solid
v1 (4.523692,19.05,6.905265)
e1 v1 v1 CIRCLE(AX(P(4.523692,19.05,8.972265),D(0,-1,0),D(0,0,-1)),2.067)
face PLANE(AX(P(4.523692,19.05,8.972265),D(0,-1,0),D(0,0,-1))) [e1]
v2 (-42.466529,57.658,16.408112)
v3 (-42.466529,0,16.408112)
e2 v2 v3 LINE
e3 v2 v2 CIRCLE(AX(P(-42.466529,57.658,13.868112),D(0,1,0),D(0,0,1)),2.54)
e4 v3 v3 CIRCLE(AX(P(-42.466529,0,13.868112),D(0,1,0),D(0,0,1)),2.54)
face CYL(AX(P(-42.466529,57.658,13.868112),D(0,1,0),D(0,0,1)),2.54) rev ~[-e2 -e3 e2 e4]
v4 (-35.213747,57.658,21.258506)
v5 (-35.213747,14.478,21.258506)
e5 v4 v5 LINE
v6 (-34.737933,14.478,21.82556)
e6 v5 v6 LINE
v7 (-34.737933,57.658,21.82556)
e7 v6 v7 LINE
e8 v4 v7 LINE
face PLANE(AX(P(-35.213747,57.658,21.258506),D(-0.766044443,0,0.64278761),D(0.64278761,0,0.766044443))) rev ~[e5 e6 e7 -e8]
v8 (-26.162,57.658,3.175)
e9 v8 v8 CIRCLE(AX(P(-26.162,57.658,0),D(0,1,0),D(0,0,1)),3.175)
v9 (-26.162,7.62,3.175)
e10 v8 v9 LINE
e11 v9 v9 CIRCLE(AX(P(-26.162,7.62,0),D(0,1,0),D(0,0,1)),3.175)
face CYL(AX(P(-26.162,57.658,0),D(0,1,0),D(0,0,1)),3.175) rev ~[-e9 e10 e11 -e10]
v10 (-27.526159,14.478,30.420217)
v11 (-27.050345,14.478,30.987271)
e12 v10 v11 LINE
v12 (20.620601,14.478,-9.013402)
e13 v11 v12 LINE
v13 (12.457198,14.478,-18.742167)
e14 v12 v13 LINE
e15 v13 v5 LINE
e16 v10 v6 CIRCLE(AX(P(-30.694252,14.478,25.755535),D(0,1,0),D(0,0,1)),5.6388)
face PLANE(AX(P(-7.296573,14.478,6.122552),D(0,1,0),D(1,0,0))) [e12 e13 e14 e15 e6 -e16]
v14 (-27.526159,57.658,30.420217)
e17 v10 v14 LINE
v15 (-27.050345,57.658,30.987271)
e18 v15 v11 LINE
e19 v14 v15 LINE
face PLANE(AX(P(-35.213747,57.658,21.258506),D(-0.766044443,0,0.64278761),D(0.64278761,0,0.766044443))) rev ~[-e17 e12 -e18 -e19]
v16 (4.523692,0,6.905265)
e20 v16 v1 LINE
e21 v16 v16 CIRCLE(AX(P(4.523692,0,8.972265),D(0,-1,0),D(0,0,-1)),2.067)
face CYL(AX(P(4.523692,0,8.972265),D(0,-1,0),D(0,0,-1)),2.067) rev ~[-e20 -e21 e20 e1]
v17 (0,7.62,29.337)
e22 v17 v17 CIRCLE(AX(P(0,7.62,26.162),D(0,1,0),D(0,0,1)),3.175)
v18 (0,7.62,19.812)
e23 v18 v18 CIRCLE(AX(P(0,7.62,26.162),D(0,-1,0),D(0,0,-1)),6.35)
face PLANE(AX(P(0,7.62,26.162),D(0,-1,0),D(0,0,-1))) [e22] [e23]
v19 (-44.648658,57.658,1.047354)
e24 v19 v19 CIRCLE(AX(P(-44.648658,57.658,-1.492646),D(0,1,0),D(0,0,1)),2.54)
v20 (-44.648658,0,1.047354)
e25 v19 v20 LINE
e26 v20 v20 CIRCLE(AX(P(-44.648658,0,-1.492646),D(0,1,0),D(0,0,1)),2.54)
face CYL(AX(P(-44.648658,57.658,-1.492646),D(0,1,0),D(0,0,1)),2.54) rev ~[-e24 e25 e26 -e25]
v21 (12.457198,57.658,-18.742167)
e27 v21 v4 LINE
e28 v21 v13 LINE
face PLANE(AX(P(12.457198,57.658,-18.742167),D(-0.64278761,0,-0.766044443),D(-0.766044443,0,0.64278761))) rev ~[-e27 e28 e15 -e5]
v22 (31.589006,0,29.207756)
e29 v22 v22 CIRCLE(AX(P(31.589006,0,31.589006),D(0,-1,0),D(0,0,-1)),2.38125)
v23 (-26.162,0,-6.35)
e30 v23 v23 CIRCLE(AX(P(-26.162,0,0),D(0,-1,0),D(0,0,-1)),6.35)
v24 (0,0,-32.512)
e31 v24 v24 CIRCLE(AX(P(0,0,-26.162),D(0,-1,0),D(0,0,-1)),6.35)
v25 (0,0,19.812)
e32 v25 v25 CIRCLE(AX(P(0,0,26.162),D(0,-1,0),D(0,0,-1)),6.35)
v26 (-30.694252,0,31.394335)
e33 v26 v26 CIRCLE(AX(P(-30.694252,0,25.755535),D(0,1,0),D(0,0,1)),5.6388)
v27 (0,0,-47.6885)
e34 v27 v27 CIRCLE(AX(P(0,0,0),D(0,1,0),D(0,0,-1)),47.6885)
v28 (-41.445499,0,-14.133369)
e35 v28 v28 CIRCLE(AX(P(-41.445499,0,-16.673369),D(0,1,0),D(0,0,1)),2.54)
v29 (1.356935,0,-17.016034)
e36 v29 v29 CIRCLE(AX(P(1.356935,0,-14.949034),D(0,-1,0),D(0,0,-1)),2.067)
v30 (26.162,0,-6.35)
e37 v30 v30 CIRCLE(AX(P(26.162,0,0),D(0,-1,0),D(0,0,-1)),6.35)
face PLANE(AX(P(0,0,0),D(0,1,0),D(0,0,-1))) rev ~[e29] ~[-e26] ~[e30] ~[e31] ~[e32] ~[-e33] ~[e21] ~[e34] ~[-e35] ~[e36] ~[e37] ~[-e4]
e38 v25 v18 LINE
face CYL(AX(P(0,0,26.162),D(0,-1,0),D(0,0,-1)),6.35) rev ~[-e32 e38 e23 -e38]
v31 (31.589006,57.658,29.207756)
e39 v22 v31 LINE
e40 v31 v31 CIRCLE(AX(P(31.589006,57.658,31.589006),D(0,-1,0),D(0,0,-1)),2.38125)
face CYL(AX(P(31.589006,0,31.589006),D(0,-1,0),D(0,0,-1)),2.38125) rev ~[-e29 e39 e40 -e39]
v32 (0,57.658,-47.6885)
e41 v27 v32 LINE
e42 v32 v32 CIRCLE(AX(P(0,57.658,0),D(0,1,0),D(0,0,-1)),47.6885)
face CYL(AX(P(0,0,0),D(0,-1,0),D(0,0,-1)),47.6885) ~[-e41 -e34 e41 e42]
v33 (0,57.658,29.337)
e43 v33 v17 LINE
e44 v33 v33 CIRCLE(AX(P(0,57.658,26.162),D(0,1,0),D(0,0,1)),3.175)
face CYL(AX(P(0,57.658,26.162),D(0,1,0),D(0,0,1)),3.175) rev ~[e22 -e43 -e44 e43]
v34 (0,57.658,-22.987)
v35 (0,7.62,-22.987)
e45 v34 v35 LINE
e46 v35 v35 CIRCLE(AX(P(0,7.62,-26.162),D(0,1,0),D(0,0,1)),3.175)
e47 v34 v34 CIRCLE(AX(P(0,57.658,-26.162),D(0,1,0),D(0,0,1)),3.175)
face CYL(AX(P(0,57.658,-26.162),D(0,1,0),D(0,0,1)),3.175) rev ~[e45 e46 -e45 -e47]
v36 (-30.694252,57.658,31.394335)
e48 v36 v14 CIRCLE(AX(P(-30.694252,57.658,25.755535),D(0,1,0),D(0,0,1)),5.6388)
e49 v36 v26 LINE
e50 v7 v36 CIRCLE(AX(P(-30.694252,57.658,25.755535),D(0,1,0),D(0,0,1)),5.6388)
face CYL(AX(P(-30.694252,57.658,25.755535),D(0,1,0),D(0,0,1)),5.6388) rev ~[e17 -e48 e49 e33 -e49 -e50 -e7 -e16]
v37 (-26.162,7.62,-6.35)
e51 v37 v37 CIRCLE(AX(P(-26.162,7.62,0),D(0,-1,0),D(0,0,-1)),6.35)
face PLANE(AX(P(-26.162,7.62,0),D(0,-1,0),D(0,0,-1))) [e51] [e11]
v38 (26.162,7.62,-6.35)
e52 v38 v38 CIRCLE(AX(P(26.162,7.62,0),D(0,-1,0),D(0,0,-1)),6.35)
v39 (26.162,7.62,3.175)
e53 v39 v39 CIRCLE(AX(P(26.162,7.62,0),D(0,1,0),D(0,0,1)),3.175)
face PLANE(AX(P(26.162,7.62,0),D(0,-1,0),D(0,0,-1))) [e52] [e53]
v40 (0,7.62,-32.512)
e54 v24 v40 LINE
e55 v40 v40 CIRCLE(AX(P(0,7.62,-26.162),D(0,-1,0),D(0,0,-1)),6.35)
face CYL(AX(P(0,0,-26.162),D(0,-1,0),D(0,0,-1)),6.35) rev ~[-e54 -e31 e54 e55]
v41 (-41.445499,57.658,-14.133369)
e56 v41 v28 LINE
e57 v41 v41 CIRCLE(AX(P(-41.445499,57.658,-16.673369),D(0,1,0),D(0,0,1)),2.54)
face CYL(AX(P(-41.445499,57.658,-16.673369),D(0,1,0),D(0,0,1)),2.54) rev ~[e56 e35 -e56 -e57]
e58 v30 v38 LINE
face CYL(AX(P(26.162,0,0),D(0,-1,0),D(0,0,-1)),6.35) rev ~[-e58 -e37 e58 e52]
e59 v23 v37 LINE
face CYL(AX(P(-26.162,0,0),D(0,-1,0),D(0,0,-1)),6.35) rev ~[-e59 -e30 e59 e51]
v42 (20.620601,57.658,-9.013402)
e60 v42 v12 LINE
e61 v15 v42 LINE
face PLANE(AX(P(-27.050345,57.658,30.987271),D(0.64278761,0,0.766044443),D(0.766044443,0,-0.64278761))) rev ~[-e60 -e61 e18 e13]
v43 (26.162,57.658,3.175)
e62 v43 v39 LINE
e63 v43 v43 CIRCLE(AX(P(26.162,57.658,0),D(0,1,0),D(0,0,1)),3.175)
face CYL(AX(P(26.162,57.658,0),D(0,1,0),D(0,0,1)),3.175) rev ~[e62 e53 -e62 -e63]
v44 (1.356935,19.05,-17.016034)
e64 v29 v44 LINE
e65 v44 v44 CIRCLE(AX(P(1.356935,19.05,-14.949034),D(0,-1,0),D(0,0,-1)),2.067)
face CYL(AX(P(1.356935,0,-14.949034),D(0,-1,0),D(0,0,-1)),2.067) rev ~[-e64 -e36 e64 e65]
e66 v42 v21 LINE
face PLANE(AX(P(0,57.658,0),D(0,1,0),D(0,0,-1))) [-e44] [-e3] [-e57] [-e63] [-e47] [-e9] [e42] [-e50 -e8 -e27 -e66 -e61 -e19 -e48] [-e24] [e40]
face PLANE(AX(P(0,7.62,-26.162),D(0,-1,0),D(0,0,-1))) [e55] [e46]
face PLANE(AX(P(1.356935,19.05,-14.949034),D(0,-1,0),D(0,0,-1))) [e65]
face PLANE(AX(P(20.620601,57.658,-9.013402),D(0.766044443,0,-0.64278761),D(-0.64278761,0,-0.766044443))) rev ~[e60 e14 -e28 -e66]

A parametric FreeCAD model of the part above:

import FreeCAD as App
import Part
import Sketcher
Q = App.Units.Quantity

doc = App.newDocument("Part")
body = doc.addObject("PartDesign::Body", "Body")

sketch1 = body.newObject("Sketcher::SketchObject", "Sketch")
sketch1.AttachmentSupport = (doc.getObject("XZ_Plane"), [""])
sketch1.MapMode = "FlatFace"
sketch1.addGeometry(Part.Circle(App.Vector(0, 0, 0), App.Vector(0, 0, 1), 47.6885), False)
sketch1.addConstraint([
    Sketcher.Constraint("Coincident", 0, 3, -1, 1),
    Sketcher.Constraint("Diameter", 0, Q("3.755 in")),
])
pad1 = body.newObject("PartDesign::Pad", "Pad")
pad1.Profile = sketch1
pad1.Length = Q("2.27 in")
pad1.Reversed = True

sketch2 = body.newObject("Sketcher::SketchObject", "Sketch001")
sketch2.AttachmentSupport = (doc.getObject("XZ_Plane"), [""])
sketch2.MapMode = "FlatFace"
sketch2.AttachmentOffset = App.Placement(App.Vector(0, 0, -2.27 * 25.4), App.Rotation())
sketch2.addGeometry([
    Part.Circle(App.Vector(-41.445499, -16.673369, 0), App.Vector(0, 0, 1), 2.54),
    Part.Circle(App.Vector(-44.648658, -1.492646, 0), App.Vector(0, 0, 1), 2.54),
    Part.Circle(App.Vector(-42.466529, 13.868112, 0), App.Vector(0, 0, 1), 2.54),
    Part.Circle(App.Vector(-30.694252, 25.755535, 0), App.Vector(0, 0, 1), 5.6388),
], False)
sketch2.addConstraint([
    Sketcher.Constraint("Equal", 0, 1),
    Sketcher.Constraint("Equal", 1, 2),
    Sketcher.Constraint("Diameter", 0, Q("0.2 in")),
    Sketcher.Constraint("Diameter", 3, Q("0.444 in")),
    Sketcher.Constraint("DistanceX", 0, 3, -1, 1, 41.445499),
    Sketcher.Constraint("DistanceY", 0, 3, -1, 1, 16.673369),
    Sketcher.Constraint("DistanceX", 1, 3, -1, 1, 44.648658),
    Sketcher.Constraint("DistanceX", 2, 3, -1, 1, 42.466529),
    Sketcher.Constraint("DistanceY", -1, 1, 2, 3, 13.868112),
    Sketcher.Constraint("DistanceX", 3, 3, -1, 1, 30.694252),
    Sketcher.Constraint("DistanceY", 1, 3, 3, 3, 27.248181),
    Sketcher.Constraint("DistanceY", 1, 3, -1, 1, 1.492646),
])
pocket1 = body.newObject("PartDesign::Pocket", "Pocket")
pocket1.Profile = sketch2
pocket1.Type = "ThroughAll"
pocket1.Reversed = True

sketch3 = body.newObject("Sketcher::SketchObject", "Sketch002")
sketch3.AttachmentSupport = (doc.getObject("XZ_Plane"), [""])
sketch3.MapMode = "FlatFace"
sketch3.AttachmentOffset = App.Placement(App.Vector(0, 0, -2.27 * 25.4), App.Rotation())
sketch3.addGeometry([
    Part.Circle(App.Vector(-26.162, 0, 0), App.Vector(0, 0, 1), 3.175),
    Part.Circle(App.Vector(26.162, 0, 0), App.Vector(0, 0, 1), 3.175),
    Part.Circle(App.Vector(0, -26.162, 0), App.Vector(0, 0, 1), 3.175),
    Part.Circle(App.Vector(0, 26.162, 0), App.Vector(0, 0, 1), 3.175),
], False)
sketch3.addConstraint([
    Sketcher.Constraint("Equal", 0, 1),
    Sketcher.Constraint("Equal", 1, 2),
    Sketcher.Constraint("Equal", 2, 3),
    Sketcher.Constraint("Symmetric", 0, 3, 1, 3, -1, 1),
    Sketcher.Constraint("Symmetric", 2, 3, 3, 3, -1, 1),
    Sketcher.Constraint("PointOnObject", 0, 3, -1),
    Sketcher.Constraint("PointOnObject", 2, 3, -2),
    Sketcher.Constraint("Diameter", 0, Q("0.25 in")),
    Sketcher.Constraint("DistanceX", 0, 3, -1, 1, Q("1.03 in")),
    Sketcher.Constraint("DistanceY", 2, 3, -1, 1, Q("1.03 in")),
])
pocket2 = body.newObject("PartDesign::Pocket", "Pocket001")
pocket2.Profile = sketch3
pocket2.Type = "ThroughAll"
pocket2.Reversed = True

sketch4 = body.newObject("Sketcher::SketchObject", "Sketch003")
sketch4.AttachmentSupport = (doc.getObject("XZ_Plane"), [""])
sketch4.MapMode = "FlatFace"
sketch4.AttachmentOffset = App.Placement(App.Vector(0, 0, -2.27 * 25.4), App.Rotation())
sketch4.addGeometry([
    Part.LineSegment(App.Vector(-27.050345, 30.987271, 0), App.Vector(20.620601, -9.013402, 0)),
    Part.LineSegment(App.Vector(20.620601, -9.013402, 0), App.Vector(12.457198, -18.742167, 0)),
    Part.LineSegment(App.Vector(12.457198, -18.742167, 0), App.Vector(-35.213747, 21.258506, 0)),
    Part.LineSegment(App.Vector(-35.213747, 21.258506, 0), App.Vector(-27.050345, 30.987271, 0)),
], False)
sketch4.addConstraint([
    Sketcher.Constraint("Coincident", 0, 2, 1, 1),
    Sketcher.Constraint("Coincident", 1, 2, 2, 1),
    Sketcher.Constraint("Coincident", 2, 2, 3, 1),
    Sketcher.Constraint("Coincident", 3, 2, 0, 1),
    Sketcher.Constraint("Perpendicular", 0, 1),
    Sketcher.Constraint("Perpendicular", 1, 2),
    Sketcher.Constraint("Perpendicular", 2, 3),
    Sketcher.Constraint("Angle", 0, Q("-40 deg")),
    Sketcher.Constraint("Distance", 1, Q("0.5 in")),
    Sketcher.Constraint("Distance", 0, Q("2.45 in")),
    Sketcher.Constraint("DistanceX", -1, 1, 0, 2, 20.620601),
    Sketcher.Constraint("DistanceY", -1, 1, 3, 2, 30.987271),
])
pocket3 = body.newObject("PartDesign::Pocket", "Pocket002")
pocket3.Profile = sketch4
pocket3.Length = Q("1.7 in")
pocket3.Reversed = True

sketch5 = body.newObject("Sketcher::SketchObject", "Sketch004")
sketch5.AttachmentSupport = (doc.getObject("XZ_Plane"), [""])
sketch5.MapMode = "FlatFace"
sketch5.addGeometry([
    Part.Circle(App.Vector(0, 26.162, 0), App.Vector(0, 0, 1), 6.35),
    Part.Circle(App.Vector(26.162, 0, 0), App.Vector(0, 0, 1), 6.35),
    Part.Circle(App.Vector(0, -26.162, 0), App.Vector(0, 0, 1), 6.35),
    Part.Circle(App.Vector(-26.162, 0, 0), App.Vector(0, 0, 1), 6.35),
], False)
sketch5.addConstraint([
    Sketcher.Constraint("Equal", 0, 1),
    Sketcher.Constraint("Equal", 1, 2),
    Sketcher.Constraint("Equal", 2, 3),
    Sketcher.Constraint("Symmetric", 0, 3, 2, 3, -1, 1),
    Sketcher.Constraint("Symmetric", 1, 3, 3, 3, -1, 1),
    Sketcher.Constraint("PointOnObject", 0, 3, -2),
    Sketcher.Constraint("PointOnObject", 1, 3, -1),
    Sketcher.Constraint("Diameter", 0, Q("0.5 in")),
    Sketcher.Constraint("DistanceY", -1, 1, 0, 3, Q("1.03 in")),
    Sketcher.Constraint("DistanceX", -1, 1, 1, 3, Q("1.03 in")),
])
pocket4 = body.newObject("PartDesign::Pocket", "Pocket003")
pocket4.Profile = sketch5
pocket4.Length = Q("0.3 in")

sketch6 = body.newObject("Sketcher::SketchObject", "Sketch005")
sketch6.AttachmentSupport = (doc.getObject("XZ_Plane"), [""])
sketch6.MapMode = "FlatFace"
sketch6.addGeometry([
    Part.Circle(App.Vector(1.356935, -14.949034, 0), App.Vector(0, 0, 1), 2.067),
    Part.Circle(App.Vector(4.523692, 8.972265, 0), App.Vector(0, 0, 1), 2.067),
], False)
sketch6.addConstraint([
    Sketcher.Constraint("Equal", 0, 1),
    Sketcher.Constraint("Diameter", 0, 4.134),
    Sketcher.Constraint("DistanceY", 0, 3, 1, 3, 23.921299),
    Sketcher.Constraint("DistanceX", -1, 1, 1, 3, 4.523692),
    Sketcher.Constraint("DistanceX", -1, 1, 0, 3, 1.356935),
    Sketcher.Constraint("DistanceY", 0, 3, -1, 1, 14.949034),
])
pocket5 = body.newObject("PartDesign::Pocket", "Pocket004")
pocket5.Profile = sketch6
pocket5.Length = Q("0.75 in")

sketch7 = body.newObject("Sketcher::SketchObject", "Sketch006")
sketch7.AttachmentSupport = (doc.getObject("XZ_Plane"), [""])
sketch7.MapMode = "FlatFace"
sketch7.addGeometry(Part.Circle(App.Vector(31.589006, 31.589006, 0), App.Vector(0, 0, 1), 2.38125), False)
sketch7.addConstraint([
    Sketcher.Constraint("Diameter", 0, Q("0.1875 in")),
    Sketcher.Constraint("DistanceX", -1, 1, 0, 3, 31.589006),
    Sketcher.Constraint("DistanceY", -1, 1, 0, 3, 31.589006),
])
pocket6 = body.newObject("PartDesign::Pocket", "Pocket005")
pocket6.Profile = sketch7
pocket6.Length = Q("2.6 in")

doc.recompute()
